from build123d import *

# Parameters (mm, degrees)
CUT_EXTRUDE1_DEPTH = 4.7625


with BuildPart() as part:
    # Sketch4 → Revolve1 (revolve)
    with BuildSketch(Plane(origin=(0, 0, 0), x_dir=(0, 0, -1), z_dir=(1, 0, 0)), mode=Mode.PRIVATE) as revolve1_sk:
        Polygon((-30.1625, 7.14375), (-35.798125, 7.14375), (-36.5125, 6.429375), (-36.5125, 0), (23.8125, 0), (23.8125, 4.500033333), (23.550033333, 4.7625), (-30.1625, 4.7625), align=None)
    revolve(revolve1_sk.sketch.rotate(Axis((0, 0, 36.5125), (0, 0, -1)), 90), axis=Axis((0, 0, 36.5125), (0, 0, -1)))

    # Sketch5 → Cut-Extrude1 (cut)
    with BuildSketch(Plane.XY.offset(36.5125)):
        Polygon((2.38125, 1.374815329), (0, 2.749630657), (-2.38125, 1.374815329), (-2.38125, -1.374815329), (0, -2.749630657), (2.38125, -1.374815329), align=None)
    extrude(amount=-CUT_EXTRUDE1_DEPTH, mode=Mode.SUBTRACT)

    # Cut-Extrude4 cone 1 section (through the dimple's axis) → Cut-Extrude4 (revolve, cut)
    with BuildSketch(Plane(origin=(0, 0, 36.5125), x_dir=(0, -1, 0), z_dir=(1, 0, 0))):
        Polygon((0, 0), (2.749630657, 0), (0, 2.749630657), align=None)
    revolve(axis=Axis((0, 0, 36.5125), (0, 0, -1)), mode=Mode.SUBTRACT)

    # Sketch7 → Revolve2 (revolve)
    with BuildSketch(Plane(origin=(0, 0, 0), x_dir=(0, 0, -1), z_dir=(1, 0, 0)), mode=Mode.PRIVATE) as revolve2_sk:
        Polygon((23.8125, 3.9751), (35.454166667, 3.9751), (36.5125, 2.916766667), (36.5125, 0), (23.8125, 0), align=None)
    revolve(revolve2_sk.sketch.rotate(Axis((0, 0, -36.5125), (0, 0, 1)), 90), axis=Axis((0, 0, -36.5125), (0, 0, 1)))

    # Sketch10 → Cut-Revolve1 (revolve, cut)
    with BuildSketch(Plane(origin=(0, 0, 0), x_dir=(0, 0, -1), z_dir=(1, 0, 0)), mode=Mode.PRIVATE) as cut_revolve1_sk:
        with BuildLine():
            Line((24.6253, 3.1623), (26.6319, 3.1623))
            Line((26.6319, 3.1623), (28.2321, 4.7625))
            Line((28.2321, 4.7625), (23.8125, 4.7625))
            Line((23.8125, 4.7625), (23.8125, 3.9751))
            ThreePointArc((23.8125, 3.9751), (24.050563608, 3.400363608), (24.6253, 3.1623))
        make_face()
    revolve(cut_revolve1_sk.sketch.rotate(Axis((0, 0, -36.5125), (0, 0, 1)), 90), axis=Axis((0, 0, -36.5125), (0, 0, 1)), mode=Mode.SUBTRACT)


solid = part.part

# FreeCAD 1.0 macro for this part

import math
import FreeCAD as App
import Part
import Sketcher
Q = App.Units.Quantity

doc = App.newDocument("Part")
params = doc.addObject("Spreadsheet::Sheet", "Params")
for row, (alias, value) in enumerate([
    ("sketch1_width", "0.09375 in"),
    ("sketch1_height", "2.375 in"),
    ("revolution_angle", "360 deg"),
    ("pocket1_length", "0.1875 in"),
    ("groove_angle", "360 deg"),
    ("sketch4_height", "0.5 in"),
    ("revolution2_angle", "360 deg"),
    ("sketch5_radius", "0.032 in"),
    ("sketch5_width", "0.031 in"),
    ("sketch5_height", "0.079 in"),
    ("groove2_angle", "360 deg"),
], start=1):
    params.set(f"A{row}", alias)
    params.set(f"B{row}", "=" + value)
    params.setAlias(f"B{row}", alias)

body = doc.addObject("PartDesign::Body", "Body")

# Sketch on YZ plane
sketch1 = doc.addObject("Sketcher::SketchObject", "Sketch")
body.addObject(sketch1)
sketch1.AttachmentSupport = (doc.YZ_Plane, [""])
sketch1.MapMode = "FlatFace"
sketch1.addGeometry(Part.LineSegment(App.Vector(7.14, 30.16, 0), App.Vector(7.14, 35.8, 0)), False)
sketch1.addGeometry(Part.LineSegment(App.Vector(7.14, 35.8, 0), App.Vector(6.43, 36.51, 0)), False)
sketch1.addGeometry(Part.LineSegment(App.Vector(6.43, 36.51, 0), App.Vector(0, 36.51, 0)), False)
sketch1.addGeometry(Part.LineSegment(App.Vector(0, 36.51, 0), App.Vector(0, -23.81, 0)), False)
sketch1.addGeometry(Part.LineSegment(App.Vector(0, -23.81, 0), App.Vector(4.5, -23.81, 0)), False)
sketch1.addGeometry(Part.LineSegment(App.Vector(4.5, -23.81, 0), App.Vector(4.76, -23.55, 0)), False)
sketch1.addGeometry(Part.LineSegment(App.Vector(4.76, -23.55, 0), App.Vector(4.76, 30.16, 0)), False)
sketch1.addGeometry(Part.LineSegment(App.Vector(4.76, 30.16, 0), App.Vector(7.14, 30.16, 0)), False)
sketch1.addConstraint(Sketcher.Constraint("Coincident", 0, 2, 1, 1))
sketch1.addConstraint(Sketcher.Constraint("Coincident", 1, 2, 2, 1))
sketch1.addConstraint(Sketcher.Constraint("Coincident", 2, 2, 3, 1))
sketch1.addConstraint(Sketcher.Constraint("Coincident", 3, 2, 4, 1))
sketch1.addConstraint(Sketcher.Constraint("Coincident", 4, 2, 5, 1))
sketch1.addConstraint(Sketcher.Constraint("Coincident", 5, 2, 6, 1))
sketch1.addConstraint(Sketcher.Constraint("Coincident", 6, 2, 7, 1))
sketch1.addConstraint(Sketcher.Constraint("Coincident", 7, 2, 0, 1))
sketch1.addConstraint(Sketcher.Constraint("Vertical", 0))
sketch1.addConstraint(Sketcher.Constraint("Horizontal", 2))
sketch1.addConstraint(Sketcher.Constraint("Vertical", 3))
sketch1.addConstraint(Sketcher.Constraint("Horizontal", 4))
sketch1.addConstraint(Sketcher.Constraint("Vertical", 6))
sketch1.addConstraint(Sketcher.Constraint("Horizontal", 7))
sketch1.addConstraint(Sketcher.Constraint("PointOnObject", 2, 2, -2))
sketch1.addConstraint(Sketcher.Constraint("Perpendicular", 1, 5))
sketch1.addConstraint(Sketcher.Constraint("Angle", 1, Q("135 deg")))
sketch1.addConstraint(Sketcher.Constraint("DistanceX", 7, 1, 7, 2, Q("0.09375 in")))
sketch1.addConstraint(Sketcher.Constraint("DistanceY", 3, 2, 3, 1, Q("2.375 in")))
sketch1.addConstraint(Sketcher.Constraint("DistanceY", 6, 2, 1, 2, Q("0.25 in")))
sketch1.addConstraint(Sketcher.Constraint("DistanceX", -1, 1, 0, 2, Q("0.28125 in")))
sketch1.addConstraint(Sketcher.Constraint("DistanceY", -1, 1, 1, 2, Q("1.4375 in")))
sketch1.addConstraint(Sketcher.Constraint("Distance", 1, Q("1.010279 mm")))
sketch1.addConstraint(Sketcher.Constraint("DistanceX", 4, 1, 4, 2, Q("4.500033 mm")))
sketch1.setExpression("Constraints[17]", "Params.sketch1_width")
sketch1.setExpression("Constraints[18]", "Params.sketch1_height")
revolution = doc.addObject("PartDesign::Revolution", "Revolution")
body.addObject(revolution)
revolution.Profile = sketch1
revolution.ReferenceAxis = (sketch1, ["V_Axis"])
revolution.setExpression("Angle", "Params.revolution_angle")

# Sketch on XY plane
sketch2 = doc.addObject("Sketcher::SketchObject", "Sketch001")
body.addObject(sketch2)
sketch2.AttachmentSupport = (doc.XY_Plane, [""])
sketch2.MapMode = "FlatFace"
sketch2.AttachmentOffset = App.Placement(App.Vector(0, 0, 1.4375 * 25.4), App.Rotation())
sketch2.addGeometry(Part.LineSegment(App.Vector(2.4, 1.4, 0), App.Vector(0, 2.7, 0)), False)
sketch2.addGeometry(Part.LineSegment(App.Vector(0, 2.7, 0), App.Vector(-2.4, 1.4, 0)), False)
sketch2.addGeometry(Part.LineSegment(App.Vector(-2.4, 1.4, 0), App.Vector(-2.4, -1.4, 0)), False)
sketch2.addGeometry(Part.LineSegment(App.Vector(-2.4, -1.4, 0), App.Vector(0, -2.7, 0)), False)
sketch2.addGeometry(Part.LineSegment(App.Vector(0, -2.7, 0), App.Vector(2.4, -1.4, 0)), False)
sketch2.addGeometry(Part.LineSegment(App.Vector(2.4, -1.4, 0), App.Vector(2.4, 1.4, 0)), False)
sketch2.addConstraint(Sketcher.Constraint("Coincident", 0, 2, 1, 1))
sketch2.addConstraint(Sketcher.Constraint("Coincident", 1, 2, 2, 1))
sketch2.addConstraint(Sketcher.Constraint("Coincident", 2, 2, 3, 1))
sketch2.addConstraint(Sketcher.Constraint("Coincident", 3, 2, 4, 1))
sketch2.addConstraint(Sketcher.Constraint("Coincident", 4, 2, 5, 1))
sketch2.addConstraint(Sketcher.Constraint("Coincident", 5, 2, 0, 1))
sketch2.addConstraint(Sketcher.Constraint("Vertical", 2))
sketch2.addConstraint(Sketcher.Constraint("Vertical", 5))
sketch2.addConstraint(Sketcher.Constraint("Symmetric", 0, 2, 3, 2, -1, 1))
sketch2.addConstraint(Sketcher.Constraint("Symmetric", 1, 2, 4, 2, -1, 1))
sketch2.addConstraint(Sketcher.Constraint("PointOnObject", 0, 2, -2))
sketch2.addConstraint(Sketcher.Constraint("Parallel", 0, 3))
sketch2.addConstraint(Sketcher.Constraint("Horizontal", 2, 2, 4, 2))
sketch2.addConstraint(Sketcher.Constraint("Angle", 0, Q("150 deg")))
sketch2.addConstraint(Sketcher.Constraint("DistanceX", 1, 2, -1, 1, Q("0.09375 in")))
sketch2.addConstraint(Sketcher.Constraint("DistanceY", 2, 2, 2, 1, Q("2.749631 mm")))
pocket1 = doc.addObject("PartDesign::Pocket", "Pocket")
body.addObject(pocket1)
pocket1.Profile = sketch2
pocket1.setExpression("Length", "Params.pocket1_length")

# Sketch on YZ plane
sketch3 = doc.addObject("Sketcher::SketchObject", "Sketch002")
body.addObject(sketch3)
sketch3.AttachmentSupport = (doc.YZ_Plane, [""])
sketch3.MapMode = "FlatFace"
sketch3.addGeometry(Part.LineSegment(App.Vector(0, 36.5, 0), App.Vector(-2.7, 36.5, 0)), False)
sketch3.addGeometry(Part.LineSegment(App.Vector(-2.7, 36.5, 0), App.Vector(0, 33.8, 0)), False)
sketch3.addGeometry(Part.LineSegment(App.Vector(0, 33.8, 0), App.Vector(0, 36.5, 0)), False)
sketch3.addConstraint(Sketcher.Constraint("Coincident", 0, 2, 1, 1))
sketch3.addConstraint(Sketcher.Constraint("Coincident", 1, 2, 2, 1))
sketch3.addConstraint(Sketcher.Constraint("Coincident", 2, 2, 0, 1))
sketch3.addConstraint(Sketcher.Constraint("Horizontal", 0))
sketch3.addConstraint(Sketcher.Constraint("Vertical", 2))
sketch3.addConstraint(Sketcher.Constraint("PointOnObject", 1, 2, -2))
sketch3.addConstraint(Sketcher.Constraint("Equal", 0, 2))
sketch3.addConstraint(Sketcher.Constraint("DistanceY", -1, 1, 0, 2, Q("1.4375 in")))
sketch3.addConstraint(Sketcher.Constraint("DistanceX", 0, 2, 0, 1, Q("2.749631 mm")))
groove = doc.addObject("PartDesign::Groove", "Groove")
body.addObject(groove)
groove.Profile = sketch3
groove.ReferenceAxis = (sketch3, ["V_Axis"])
groove.setExpression("Angle", "Params.groove_angle")

# Sketch on YZ plane
sketch4 = doc.addObject("Sketcher::SketchObject", "Sketch003")
body.addObject(sketch4)
sketch4.AttachmentSupport = (doc.YZ_Plane, [""])
sketch4.MapMode = "FlatFace"
sketch4.addGeometry(Part.LineSegment(App.Vector(4, -35.5, 0), App.Vector(4, -23.8, 0)), False)
sketch4.addGeometry(Part.LineSegment(App.Vector(4, -23.8, 0), App.Vector(0, -23.8, 0)), False)
sketch4.addGeometry(Part.LineSegment(App.Vector(0, -23.8, 0), App.Vector(0, -36.5, 0)), False)
sketch4.addGeometry(Part.LineSegment(App.Vector(0, -36.5, 0), App.Vector(2.9, -36.5, 0)), False)
sketch4.addGeometry(Part.LineSegment(App.Vector(2.9, -36.5, 0), App.Vector(4, -35.5, 0)), False)
sketch4.addConstraint(Sketcher.Constraint("Coincident", 0, 2, 1, 1))
sketch4.addConstraint(Sketcher.Constraint("Coincident", 1, 2, 2, 1))
sketch4.addConstraint(Sketcher.Constraint("Coincident", 2, 2, 3, 1))
sketch4.addConstraint(Sketcher.Constraint("Coincident", 3, 2, 4, 1))
sketch4.addConstraint(Sketcher.Constraint("Coincident", 4, 2, 0, 1))
sketch4.addConstraint(Sketcher.Constraint("Vertical", 0))
sketch4.addConstraint(Sketcher.Constraint("Horizontal", 1))
sketch4.addConstraint(Sketcher.Constraint("Vertical", 2))
sketch4.addConstraint(Sketcher.Constraint("Horizontal", 3))
sketch4.addConstraint(Sketcher.Constraint("PointOnObject", 1, 2, -2))
sketch4.addConstraint(Sketcher.Constraint("DistanceY", 2, 2, 2, 1, Q("0.5 in")))
sketch4.addConstraint(Sketcher.Constraint("Angle", 4, Q("45 deg")))
sketch4.addConstraint(Sketcher.Constraint("DistanceX", 1, 2, 1, 1, Q("0.1565 in")))
sketch4.addConstraint(Sketcher.Constraint("DistanceY", 0, 2, -1, 1, Q("0.9375 in")))
sketch4.addConstraint(Sketcher.Constraint("Distance", 4, Q("1.496709 mm")))
sketch4.setExpression("Constraints[10]", "Params.sketch4_height")
revolution2 = doc.addObject("PartDesign::Revolution", "Revolution001")
body.addObject(revolution2)
revolution2.Profile = sketch4
revolution2.ReferenceAxis = (sketch4, ["V_Axis"])
revolution2.setExpression("Angle", "Params.revolution2_angle")

# Sketch on YZ plane
sketch5 = doc.addObject("Sketcher::SketchObject", "Sketch004")
body.addObject(sketch5)
sketch5.AttachmentSupport = (doc.YZ_Plane, [""])
sketch5.MapMode = "FlatFace"
sketch5.addGeometry(Part.LineSegment(App.Vector(3.2, -24.6, 0), App.Vector(3.2, -26.6, 0)), False)
sketch5.addGeometry(Part.LineSegment(App.Vector(3.2, -26.6, 0), App.Vector(4.8, -28.2, 0)), False)
sketch5.addGeometry(Part.LineSegment(App.Vector(4.8, -28.2, 0), App.Vector(4.8, -23.8, 0)), False)
sketch5.addGeometry(Part.LineSegment(App.Vector(4.8, -23.8, 0), App.Vector(4, -23.8, 0)), False)
sketch5.addGeometry(Part.ArcOfCircle(Part.Circle(App.Vector(4, -24.6, 0), App.Vector(0, 0, 1), 0.8), math.radians(90), math.radians(180)), False)
sketch5.addConstraint(Sketcher.Constraint("Coincident", 0, 2, 1, 1))
sketch5.addConstraint(Sketcher.Constraint("Coincident", 1, 2, 2, 1))
sketch5.addConstraint(Sketcher.Constraint("Coincident", 2, 2, 3, 1))
sketch5.addConstraint(Sketcher.Constraint("Tangent", 3, 2, 4, 1))
sketch5.addConstraint(Sketcher.Constraint("Tangent", 4, 2, 0, 1))
sketch5.addConstraint(Sketcher.Constraint("Vertical", 0))
sketch5.addConstraint(Sketcher.Constraint("Vertical", 2))
sketch5.addConstraint(Sketcher.Constraint("Horizontal", 3))
sketch5.addConstraint(Sketcher.Constraint("Angle", 1, Q("-45 deg")))
sketch5.addConstraint(Sketcher.Constraint("Radius", 4, Q("0.032 in")))
sketch5.addConstraint(Sketcher.Constraint("DistanceX", 3, 2, 3, 1, Q("0.031 in")))
sketch5.addConstraint(Sketcher.Constraint("DistanceY", 0, 2, 0, 1, Q("0.079 in")))
sketch5.addConstraint(Sketcher.Constraint("DistanceX", -1, 1, 1, 2, Q("0.1875 in")))
sketch5.addConstraint(Sketcher.Constraint("DistanceY", 2, 2, -1, 1, Q("0.9375 in")))
sketch5.setExpression("Constraints[9]", "Params.sketch5_radius")
sketch5.setExpression("Constraints[10]", "Params.sketch5_width")
sketch5.setExpression("Constraints[11]", "Params.sketch5_height")
groove2 = doc.addObject("PartDesign::Groove", "Groove001")
body.addObject(groove2)
groove2.Profile = sketch5
groove2.ReferenceAxis = (sketch5, ["V_Axis"])
groove2.setExpression("Angle", "Params.groove2_angle")

doc.recompute()
